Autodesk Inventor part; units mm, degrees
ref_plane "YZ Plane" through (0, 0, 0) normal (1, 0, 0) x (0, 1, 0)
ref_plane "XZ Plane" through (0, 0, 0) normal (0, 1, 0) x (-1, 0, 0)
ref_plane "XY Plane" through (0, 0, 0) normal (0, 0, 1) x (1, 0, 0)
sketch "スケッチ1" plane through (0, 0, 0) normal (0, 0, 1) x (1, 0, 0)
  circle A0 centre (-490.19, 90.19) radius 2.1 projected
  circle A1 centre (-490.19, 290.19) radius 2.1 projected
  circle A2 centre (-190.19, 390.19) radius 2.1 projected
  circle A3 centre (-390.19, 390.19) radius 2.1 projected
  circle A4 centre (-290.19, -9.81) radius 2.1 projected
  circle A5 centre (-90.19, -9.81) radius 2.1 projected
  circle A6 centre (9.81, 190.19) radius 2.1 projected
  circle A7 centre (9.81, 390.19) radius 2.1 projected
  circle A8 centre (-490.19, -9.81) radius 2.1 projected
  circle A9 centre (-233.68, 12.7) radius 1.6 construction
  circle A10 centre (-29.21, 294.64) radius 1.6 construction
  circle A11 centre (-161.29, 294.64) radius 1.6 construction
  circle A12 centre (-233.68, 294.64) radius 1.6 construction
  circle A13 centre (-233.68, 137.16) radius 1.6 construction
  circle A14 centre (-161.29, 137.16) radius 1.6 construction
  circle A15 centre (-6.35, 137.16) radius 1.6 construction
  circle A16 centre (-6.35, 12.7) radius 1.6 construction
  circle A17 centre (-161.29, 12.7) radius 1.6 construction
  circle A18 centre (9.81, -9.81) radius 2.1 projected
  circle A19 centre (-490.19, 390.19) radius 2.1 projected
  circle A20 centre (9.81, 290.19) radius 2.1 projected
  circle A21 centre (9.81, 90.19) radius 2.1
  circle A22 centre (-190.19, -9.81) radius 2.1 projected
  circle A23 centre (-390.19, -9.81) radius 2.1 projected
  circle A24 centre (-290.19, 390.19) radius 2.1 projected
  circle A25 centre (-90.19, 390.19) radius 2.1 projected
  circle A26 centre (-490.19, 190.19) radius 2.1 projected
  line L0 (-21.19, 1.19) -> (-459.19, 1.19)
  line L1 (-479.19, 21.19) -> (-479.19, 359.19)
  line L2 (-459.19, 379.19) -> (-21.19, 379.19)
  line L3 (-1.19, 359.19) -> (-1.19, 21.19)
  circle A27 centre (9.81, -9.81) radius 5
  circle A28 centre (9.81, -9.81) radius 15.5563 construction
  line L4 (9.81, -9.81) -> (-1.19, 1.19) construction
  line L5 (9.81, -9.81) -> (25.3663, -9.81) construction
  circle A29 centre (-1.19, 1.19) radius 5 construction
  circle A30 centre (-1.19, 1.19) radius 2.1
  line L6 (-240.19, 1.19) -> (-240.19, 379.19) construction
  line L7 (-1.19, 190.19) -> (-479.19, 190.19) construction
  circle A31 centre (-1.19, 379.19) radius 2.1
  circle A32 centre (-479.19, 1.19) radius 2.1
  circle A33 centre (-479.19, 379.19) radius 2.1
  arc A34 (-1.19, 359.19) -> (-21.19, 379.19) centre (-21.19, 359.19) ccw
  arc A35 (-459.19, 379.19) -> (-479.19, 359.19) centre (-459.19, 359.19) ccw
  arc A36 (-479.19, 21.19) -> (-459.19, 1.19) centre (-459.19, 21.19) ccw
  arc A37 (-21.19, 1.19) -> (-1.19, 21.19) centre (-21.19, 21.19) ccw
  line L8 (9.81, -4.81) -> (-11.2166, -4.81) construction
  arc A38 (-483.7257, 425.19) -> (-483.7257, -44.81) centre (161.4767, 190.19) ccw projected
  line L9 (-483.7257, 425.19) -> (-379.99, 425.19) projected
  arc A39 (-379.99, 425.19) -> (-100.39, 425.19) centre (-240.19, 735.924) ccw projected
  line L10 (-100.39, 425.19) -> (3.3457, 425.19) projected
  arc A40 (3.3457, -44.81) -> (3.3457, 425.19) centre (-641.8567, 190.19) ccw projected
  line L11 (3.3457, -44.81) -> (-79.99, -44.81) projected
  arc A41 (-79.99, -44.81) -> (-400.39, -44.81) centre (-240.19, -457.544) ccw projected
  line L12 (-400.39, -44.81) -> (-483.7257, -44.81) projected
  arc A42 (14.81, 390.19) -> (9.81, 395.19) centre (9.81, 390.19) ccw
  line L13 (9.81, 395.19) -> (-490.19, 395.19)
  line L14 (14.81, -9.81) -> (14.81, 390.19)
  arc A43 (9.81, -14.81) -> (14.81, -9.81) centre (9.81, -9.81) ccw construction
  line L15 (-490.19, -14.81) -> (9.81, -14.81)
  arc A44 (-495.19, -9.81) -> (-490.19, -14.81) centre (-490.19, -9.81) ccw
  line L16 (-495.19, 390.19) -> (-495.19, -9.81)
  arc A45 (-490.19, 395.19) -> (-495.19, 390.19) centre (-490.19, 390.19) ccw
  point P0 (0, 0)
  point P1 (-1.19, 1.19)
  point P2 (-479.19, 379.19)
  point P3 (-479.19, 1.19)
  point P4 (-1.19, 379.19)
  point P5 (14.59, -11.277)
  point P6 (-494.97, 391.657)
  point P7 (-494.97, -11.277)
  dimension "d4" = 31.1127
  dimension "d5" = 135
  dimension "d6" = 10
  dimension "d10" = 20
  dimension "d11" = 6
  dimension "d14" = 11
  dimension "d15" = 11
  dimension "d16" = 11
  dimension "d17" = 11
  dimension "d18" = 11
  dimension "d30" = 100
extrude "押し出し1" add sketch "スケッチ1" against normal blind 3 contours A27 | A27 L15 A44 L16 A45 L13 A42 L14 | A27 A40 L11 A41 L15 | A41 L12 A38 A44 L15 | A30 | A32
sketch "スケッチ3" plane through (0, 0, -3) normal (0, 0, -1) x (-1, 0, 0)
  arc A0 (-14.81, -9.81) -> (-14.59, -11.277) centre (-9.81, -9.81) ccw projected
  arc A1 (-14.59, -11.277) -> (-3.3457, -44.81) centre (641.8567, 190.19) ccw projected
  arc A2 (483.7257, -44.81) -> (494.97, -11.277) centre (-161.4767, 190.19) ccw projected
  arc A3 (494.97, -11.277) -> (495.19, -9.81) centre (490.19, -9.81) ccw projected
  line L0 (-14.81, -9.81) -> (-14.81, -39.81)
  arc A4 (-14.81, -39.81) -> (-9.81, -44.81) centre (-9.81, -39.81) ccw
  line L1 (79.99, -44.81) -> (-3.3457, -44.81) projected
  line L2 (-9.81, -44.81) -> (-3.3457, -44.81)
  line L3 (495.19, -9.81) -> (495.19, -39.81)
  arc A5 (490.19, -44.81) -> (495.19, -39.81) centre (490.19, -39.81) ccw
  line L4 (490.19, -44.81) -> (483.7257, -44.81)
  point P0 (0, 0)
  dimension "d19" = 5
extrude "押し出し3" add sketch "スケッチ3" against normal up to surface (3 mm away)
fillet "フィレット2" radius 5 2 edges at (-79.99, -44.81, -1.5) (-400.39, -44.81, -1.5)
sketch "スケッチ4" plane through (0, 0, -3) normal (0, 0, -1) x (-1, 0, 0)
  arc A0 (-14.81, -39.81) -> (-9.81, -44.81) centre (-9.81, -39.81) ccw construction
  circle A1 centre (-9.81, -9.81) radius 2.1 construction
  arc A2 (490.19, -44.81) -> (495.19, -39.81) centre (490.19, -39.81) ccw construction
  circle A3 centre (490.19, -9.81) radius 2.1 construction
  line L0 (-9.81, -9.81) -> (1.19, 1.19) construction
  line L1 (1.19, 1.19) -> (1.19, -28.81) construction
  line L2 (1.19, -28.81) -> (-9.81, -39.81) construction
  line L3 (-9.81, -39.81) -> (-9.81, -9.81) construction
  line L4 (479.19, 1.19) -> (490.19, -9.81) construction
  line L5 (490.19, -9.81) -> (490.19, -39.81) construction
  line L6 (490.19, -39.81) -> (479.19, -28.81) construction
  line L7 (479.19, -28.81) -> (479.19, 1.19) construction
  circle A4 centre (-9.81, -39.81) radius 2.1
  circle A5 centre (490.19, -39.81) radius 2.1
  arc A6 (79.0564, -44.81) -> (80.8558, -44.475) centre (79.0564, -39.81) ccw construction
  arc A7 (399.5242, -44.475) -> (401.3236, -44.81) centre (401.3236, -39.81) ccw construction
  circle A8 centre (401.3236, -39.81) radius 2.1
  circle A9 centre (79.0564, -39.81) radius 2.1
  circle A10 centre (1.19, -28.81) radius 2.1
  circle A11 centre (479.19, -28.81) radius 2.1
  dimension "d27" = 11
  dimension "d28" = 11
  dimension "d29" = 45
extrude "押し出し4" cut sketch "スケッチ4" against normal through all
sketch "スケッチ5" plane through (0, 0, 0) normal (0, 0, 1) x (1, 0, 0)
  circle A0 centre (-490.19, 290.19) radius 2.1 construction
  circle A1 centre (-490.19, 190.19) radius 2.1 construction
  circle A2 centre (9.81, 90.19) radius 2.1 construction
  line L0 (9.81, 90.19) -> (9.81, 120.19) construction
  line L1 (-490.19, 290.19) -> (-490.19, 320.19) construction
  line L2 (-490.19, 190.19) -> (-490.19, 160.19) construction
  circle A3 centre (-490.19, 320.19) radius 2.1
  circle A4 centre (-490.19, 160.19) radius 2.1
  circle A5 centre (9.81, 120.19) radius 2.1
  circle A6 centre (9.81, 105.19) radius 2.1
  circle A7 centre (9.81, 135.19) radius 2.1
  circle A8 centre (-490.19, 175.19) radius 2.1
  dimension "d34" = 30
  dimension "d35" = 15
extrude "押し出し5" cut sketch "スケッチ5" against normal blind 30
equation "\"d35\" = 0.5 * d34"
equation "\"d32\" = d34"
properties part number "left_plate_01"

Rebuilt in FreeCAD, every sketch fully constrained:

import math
import FreeCAD as App
import Part
import Sketcher

V = App.Vector


def edges_at(feature, points):
    """Names of the edges that pass closest to the given points."""
    edges = feature.Shape.Edges
    near = lambda p: min(range(len(edges)), key=lambda i: edges[i].distToShape(Part.Vertex(*p))[0])
    return sorted({f"Edge{near(p) + 1}" for p in points})

doc = App.newDocument("Part")
body = doc.addObject("PartDesign::Body", "Body")

# Sketch on XY plane
sketch1 = body.newObject("Sketcher::SketchObject", "Sketch")
sketch1.AttachmentSupport = (doc.getObject("XY_Plane"), [""])
sketch1.MapMode = "FlatFace"
sketch1.addGeometry([
    Part.ArcOfCircle(Part.Circle(V(9.8, -9.8, 0), V(0, 0, 1), 5), math.radians(-17.06), math.radians(0)),  # 0
    Part.LineSegment(V(14.8, -9.8, 0), V(14.8, 390.2, 0)),  # 1
    Part.ArcOfCircle(Part.Circle(V(9.8, 390.2, 0), V(0, 0, 1), 5), math.radians(0), math.radians(90)),  # 2
    Part.LineSegment(V(9.8, 395.2, 0), V(-490.2, 395.2, 0)),  # 3
    Part.ArcOfCircle(Part.Circle(V(-490.2, 390.2, 0), V(0, 0, 1), 5), math.radians(90), math.radians(180)),  # 4
    Part.LineSegment(V(-495.2, 390.2, 0), V(-495.2, -9.8, 0)),  # 5
    Part.ArcOfCircle(Part.Circle(V(-490.2, -9.8, 0), V(0, 0, 1), 5), math.radians(180), math.radians(197.06)),  # 6
    Part.ArcOfCircle(Part.Circle(V(161.5, 190.2, 0), V(0, 0, 1), 686.7), math.radians(-162.94), math.radians(-159.99)),  # 7
    Part.LineSegment(V(-483.7, -44.8, 0), V(-400.4, -44.8, 0)),  # 8
    Part.ArcOfCircle(Part.Circle(V(-240.2, -457.5, 0), V(0, 0, 1), 442.7), math.radians(69), math.radians(111)),  # 9
    Part.LineSegment(V(-80, -44.8, 0), V(3.3, -44.8, 0)),  # 10
    Part.ArcOfCircle(Part.Circle(V(-641.9, 190.2, 0), V(0, 0, 1), 686.7), math.radians(-20.01), math.radians(-17.06)),  # 11
    Part.Circle(V(9.8, -9.8, 0), V(0, 0, 1), 2.1),  # 12
    Part.Circle(V(9.8, 390.2, 0), V(0, 0, 1), 2.1),  # 13
    Part.Circle(V(-1.2, 379.2, 0), V(0, 0, 1), 2.1),  # 14
    Part.Circle(V(-490.2, -9.8, 0), V(0, 0, 1), 2.1),  # 15
    Part.Circle(V(-390.2, -9.8, 0), V(0, 0, 1), 2.1),  # 16
    Part.Circle(V(-290.2, -9.8, 0), V(0, 0, 1), 2.1),  # 17
    Part.Circle(V(-490.2, 90.2, 0), V(0, 0, 1), 2.1),  # 18
    Part.Circle(V(-490.2, 190.2, 0), V(0, 0, 1), 2.1),  # 19
    Part.Circle(V(-190.2, -9.8, 0), V(0, 0, 1), 2.1),  # 20
    Part.Circle(V(-90.2, -9.8, 0), V(0, 0, 1), 2.1),  # 21
    Part.ArcOfCircle(Part.Circle(V(-21.2, 21.2, 0), V(0, 0, 1), 20), math.radians(-90), math.radians(0)),  # 22
    Part.LineSegment(V(-21.2, 1.2, 0), V(-459.2, 1.2, 0)),  # 23
    Part.ArcOfCircle(Part.Circle(V(-459.2, 21.2, 0), V(0, 0, 1), 20), math.radians(180), math.radians(270)),  # 24
    Part.LineSegment(V(-479.2, 21.2, 0), V(-479.2, 359.2, 0)),  # 25
    Part.ArcOfCircle(Part.Circle(V(-459.2, 359.2, 0), V(0, 0, 1), 20), math.radians(90), math.radians(180)),  # 26
    Part.LineSegment(V(-459.2, 379.2, 0), V(-21.2, 379.2, 0)),  # 27
    Part.ArcOfCircle(Part.Circle(V(-21.2, 359.2, 0), V(0, 0, 1), 20), math.radians(0), math.radians(90)),  # 28
    Part.LineSegment(V(-1.2, 359.2, 0), V(-1.2, 21.2, 0)),  # 29
    Part.Circle(V(9.8, 90.2, 0), V(0, 0, 1), 2.1),  # 30
    Part.Circle(V(9.8, 190.2, 0), V(0, 0, 1), 2.1),  # 31
    Part.Circle(V(-490.2, 290.2, 0), V(0, 0, 1), 2.1),  # 32
    Part.Circle(V(-490.2, 390.2, 0), V(0, 0, 1), 2.1),  # 33
    Part.Circle(V(-479.2, 379.2, 0), V(0, 0, 1), 2.1),  # 34
    Part.Circle(V(-390.2, 390.2, 0), V(0, 0, 1), 2.1),  # 35
    Part.Circle(V(-290.2, 390.2, 0), V(0, 0, 1), 2.1),  # 36
    Part.Circle(V(9.8, 290.2, 0), V(0, 0, 1), 2.1),  # 37
    Part.Circle(V(-190.2, 390.2, 0), V(0, 0, 1), 2.1),  # 38
    Part.Circle(V(-90.2, 390.2, 0), V(0, 0, 1), 2.1),  # 39
], False)
sketch1.addConstraint([
    Sketcher.Constraint("Tangent", 0, 2, 1, 1),
    Sketcher.Constraint("Tangent", 1, 2, 2, 1),
    Sketcher.Constraint("Tangent", 2, 2, 3, 1),
    Sketcher.Constraint("Tangent", 3, 2, 4, 1),
    Sketcher.Constraint("Tangent", 4, 2, 5, 1),
    Sketcher.Constraint("Tangent", 5, 2, 6, 1),
    Sketcher.Constraint("Tangent", 6, 2, 7, 1),
    Sketcher.Constraint("Coincident", 7, 2, 8, 1),
    Sketcher.Constraint("Coincident", 8, 2, 9, 2),
    Sketcher.Constraint("Coincident", 9, 1, 10, 1),
    Sketcher.Constraint("Coincident", 10, 2, 11, 1),
    Sketcher.Constraint("Tangent", 11, 2, 0, 1),
    Sketcher.Constraint("Tangent", 22, 1, 23, 1),
    Sketcher.Constraint("Tangent", 23, 2, 24, 2),
    Sketcher.Constraint("Tangent", 24, 1, 25, 1),
    Sketcher.Constraint("Tangent", 25, 2, 26, 2),
    Sketcher.Constraint("Tangent", 26, 1, 27, 1),
    Sketcher.Constraint("Tangent", 27, 2, 28, 2),
    Sketcher.Constraint("Tangent", 28, 1, 29, 1),
    Sketcher.Constraint("Tangent", 29, 2, 22, 2),
    Sketcher.Constraint("Vertical", 1),
    Sketcher.Constraint("Horizontal", 3),
    Sketcher.Constraint("Vertical", 5),
    Sketcher.Constraint("Horizontal", 8),
    Sketcher.Constraint("Horizontal", 10),
    Sketcher.Constraint("Horizontal", 23),
    Sketcher.Constraint("Vertical", 25),
    Sketcher.Constraint("Horizontal", 27),
    Sketcher.Constraint("Vertical", 29),
    Sketcher.Constraint("Coincident", 12, 3, 0, 3),
    Sketcher.Constraint("Coincident", 13, 3, 2, 3),
    Sketcher.Constraint("Coincident", 15, 3, 6, 3),
    Sketcher.Constraint("Coincident", 33, 3, 4, 3),
    Sketcher.Constraint("Equal", 0, 2),
    Sketcher.Constraint("Equal", 2, 4),
    Sketcher.Constraint("Equal", 4, 6),
    Sketcher.Constraint("Equal", 7, 11),
    Sketcher.Constraint("Equal", 12, 13),
    Sketcher.Constraint("Equal", 13, 14),
    Sketcher.Constraint("Equal", 14, 15),
    Sketcher.Constraint("Equal", 15, 16),
    Sketcher.Constraint("Equal", 16, 17),
    Sketcher.Constraint("Equal", 17, 18),
    Sketcher.Constraint("Equal", 18, 19),
    Sketcher.Constraint("Equal", 19, 20),
    Sketcher.Constraint("Equal", 20, 21),
    Sketcher.Constraint("Equal", 22, 24),
    Sketcher.Constraint("Equal", 24, 26),
    Sketcher.Constraint("Equal", 26, 28),
    Sketcher.Constraint("Equal", 21, 30),
    Sketcher.Constraint("Equal", 30, 31),
    Sketcher.Constraint("Equal", 31, 32),
    Sketcher.Constraint("Equal", 32, 33),
    Sketcher.Constraint("Equal", 33, 34),
    Sketcher.Constraint("Equal", 34, 35),
    Sketcher.Constraint("Equal", 35, 36),
    Sketcher.Constraint("Equal", 36, 37),
    Sketcher.Constraint("Equal", 37, 38),
    Sketcher.Constraint("Equal", 38, 39),
    Sketcher.Constraint("Horizontal", 0, 3, 6, 3),
    Sketcher.Constraint("Horizontal", 7, 3, 11, 3),
    Sketcher.Constraint("Horizontal", 15, 3, 16, 3),
    Sketcher.Constraint("Horizontal", 16, 3, 17, 3),
    Sketcher.Constraint("Horizontal", 11, 3, 19, 3),
    Sketcher.Constraint("Horizontal", 17, 3, 20, 3),
    Sketcher.Constraint("Horizontal", 20, 3, 21, 3),
    Sketcher.Constraint("Horizontal", 18, 3, 30, 3),
    Sketcher.Constraint("Horizontal", 19, 3, 31, 3),
    Sketcher.Constraint("Horizontal", 14, 3, 34, 3),
    Sketcher.Constraint("Horizontal", 33, 3, 35, 3),
    Sketcher.Constraint("Horizontal", 35, 3, 36, 3),
    Sketcher.Constraint("Horizontal", 32, 3, 37, 3),
    Sketcher.Constraint("Horizontal", 36, 3, 38, 3),
    Sketcher.Constraint("Horizontal", 38, 3, 39, 3),
    Sketcher.Constraint("Horizontal", 8, 2, 9, 1),
    Sketcher.Constraint("Horizontal", 34, 3, 26, 1),
    Sketcher.Constraint("Vertical", 15, 3, 18, 3),
    Sketcher.Constraint("Vertical", 18, 3, 19, 3),
    Sketcher.Constraint("Vertical", 13, 3, 30, 3),
    Sketcher.Constraint("Vertical", 30, 3, 31, 3),
    Sketcher.Constraint("Vertical", 19, 3, 32, 3),
    Sketcher.Constraint("Vertical", 16, 3, 35, 3),
    Sketcher.Constraint("Vertical", 17, 3, 36, 3),
    Sketcher.Constraint("Vertical", 31, 3, 37, 3),
    Sketcher.Constraint("Vertical", 20, 3, 38, 3),
    Sketcher.Constraint("Vertical", 21, 3, 39, 3),
    Sketcher.Constraint("Vertical", 34, 3, 24, 1),
    Sketcher.Constraint("Vertical", 14, 3, 28, 1),
    Sketcher.Constraint("Equal", 8, 10),
    Sketcher.Constraint("Radius", 0, 5.0),
    Sketcher.Constraint("Radius", 22, 20.0),
    Sketcher.Constraint("DistanceX", 14, 3, 2, 3, 11.0),
    Sketcher.Constraint("DistanceY", 14, 3, 2, 3, 11.0),
    Sketcher.Constraint("DistanceX", 6, 3, 16, 3, 100.0),
    Sketcher.Constraint("DistanceX", 16, 3, 17, 3, 100.0),
    Sketcher.Constraint("DistanceY", 6, 3, 18, 3, 100.0),
    Sketcher.Constraint("DistanceY", 18, 3, 11, 3, 100.0),
    Sketcher.Constraint("DistanceX", 17, 3, 20, 3, 100.0),
    Sketcher.Constraint("DistanceX", 21, 3, 0, 3, 100.0),
    Sketcher.Constraint("DistanceX", 20, 3, 21, 3, 100.0),
    Sketcher.Constraint("DistanceY", 32, 3, 4, 3, 100.0),
    Sketcher.Constraint("DistanceY", 19, 3, 32, 3, 100.0),
    Sketcher.Constraint("DistanceX", 4, 3, 34, 3, 11.0),
    Sketcher.Constraint("DistanceY", 0, 3, 22, 1, 11.0),
    Sketcher.Constraint("Diameter", 12, 4.2),
    Sketcher.Constraint("Radius", 9, 442.734),
    Sketcher.Constraint("DistanceY", 8, 2, 16, 3, 35.0),
    Sketcher.Constraint("Radius", 7, 686.6667),
    Sketcher.Constraint("DistanceX", 8, 2, 16, 3, 10.2),
    Sketcher.Constraint("DistanceX", -1, 1, 0, 3, 9.81),
    Sketcher.Constraint("DistanceY", 0, 3, -1, 1, 9.81),
])
pad1 = body.newObject("PartDesign::Pad", "Pad")
pad1.Profile = sketch1
pad1.Length = 3
pad1.Reversed = True

# Sketch on XY plane
sketch2 = body.newObject("Sketcher::SketchObject", "Sketch001")
sketch2.AttachmentSupport = (doc.getObject("XY_Plane"), [""])
sketch2.MapMode = "FlatFace"
sketch2.AttachmentOffset = App.Placement(V(0, 0, -3), App.Rotation())
sketch2.addGeometry([
    Part.ArcOfCircle(Part.Circle(V(9.807789, -9.809835, 0), V(0, 0, 1), 5.002211), math.radians(-17.055823), math.radians(-0.001889)),  # 0
    Part.LineSegment(V(14.81, -9.81, 0), V(14.81, -39.81, 0)),  # 1
    Part.ArcOfCircle(Part.Circle(V(9.81, -39.81, 0), V(0, 0, 1), 5), math.radians(-90), math.radians(0)),  # 2
    Part.LineSegment(V(9.81, -44.81, 0), V(3.3457, -44.81, 0)),  # 3
    Part.ArcOfCircle(Part.Circle(V(-641.7678, 190.161458, 0), V(0, 0, 1), 686.573385), math.radians(-20.01328), math.radians(-17.061429)),  # 4
    Part.ArcOfCircle(Part.Circle(V(161.56486, 190.22083, 0), V(0, 0, 1), 686.760073), math.radians(-162.938169), math.radians(-159.987121)),  # 5
    Part.LineSegment(V(-483.7257, -44.81, 0), V(-490.19, -44.81, 0)),  # 6
    Part.ArcOfCircle(Part.Circle(V(-490.19, -39.81, 0), V(0, 0, 1), 5), math.radians(180), math.radians(270)),  # 7
    Part.LineSegment(V(-495.19, -39.81, 0), V(-495.19, -9.81, 0)),  # 8
    Part.ArcOfCircle(Part.Circle(V(-490.19216, -9.810491, 0), V(0, 0, 1), 4.99784), math.radians(179.994376), math.radians(197.063336)),  # 9
], False)
sketch2.addConstraint([
    Sketcher.Constraint("Coincident", 0, 2, 1, 1),
    Sketcher.Constraint("Coincident", 1, 2, 2, 2),
    Sketcher.Constraint("Coincident", 2, 1, 3, 1),
    Sketcher.Constraint("Coincident", 3, 2, 4, 1),
    Sketcher.Constraint("Coincident", 4, 2, 0, 1),
    Sketcher.Constraint("Coincident", 5, 2, 6, 1),
    Sketcher.Constraint("Coincident", 6, 2, 7, 2),
    Sketcher.Constraint("Coincident", 7, 1, 8, 1),
    Sketcher.Constraint("Coincident", 8, 2, 9, 1),
    Sketcher.Constraint("Coincident", 9, 2, 5, 1),
    Sketcher.Constraint("Vertical", 1),
    Sketcher.Constraint("Horizontal", 3),
    Sketcher.Constraint("Horizontal", 6),
    Sketcher.Constraint("Vertical", 8),
    Sketcher.Constraint("Radius", 2, 5.0),
    Sketcher.Constraint("Radius", 7, 5.0),
    Sketcher.Constraint("DistanceX", 2, 1, 1, 2, 5.0),
    Sketcher.Constraint("DistanceY", 2, 1, 1, 2, 5.0),
    Sketcher.Constraint("DistanceX", 7, 1, 6, 2, 5.0),
    Sketcher.Constraint("DistanceY", 6, 2, 7, 1, 5.0),
    Sketcher.Constraint("DistanceY", 1, 2, 1, 1, 30.0),
    Sketcher.Constraint("DistanceY", 8, 1, 8, 2, 30.0),
    Sketcher.Constraint("Radius", 5, 686.76),
    Sketcher.Constraint("DistanceX", 7, 3, 2, 3, 500.0),
    Sketcher.Constraint("DistanceX", 9, 3, 0, 3, 500.0),
    Sketcher.Constraint("DistanceY", 7, 3, 0, 2, 30.0),
    Sketcher.Constraint("Radius", 0, 5.0022),
    Sketcher.Constraint("Radius", 4, 686.5734),
    Sketcher.Constraint("DistanceX", -1, 1, 2, 3, 9.81),
    Sketcher.Constraint("DistanceY", 2, 3, -1, 1, 39.81),
    Sketcher.Constraint("DistanceX", -1, 1, 4, 2, 14.59),
    Sketcher.Constraint("DistanceX", 9, 2, -1, 1, 494.97),
    Sketcher.Constraint("DistanceX", 3, 2, 3, 1, 6.4643),
    Sketcher.Constraint("DistanceX", 6, 2, 6, 1, 6.4643),
    Sketcher.Constraint("DistanceY", 9, 2, -1, 1, 11.277),
    Sketcher.Constraint("DistanceY", 9, 3, 4, 3, 199.972),
])
pad2 = body.newObject("PartDesign::Pad", "Pad001")
pad2.Profile = sketch2
pad2.Length = 3
doc.recompute()

fillet = body.newObject("PartDesign::Fillet", "Fillet")
fillet.Base = (pad2, edges_at(pad2, [(-79.99, -44.81, -1.5), (-400.39, -44.81, -1.5)]))
fillet.Radius = 5

# Sketch on XY plane
sketch3 = body.newObject("Sketcher::SketchObject", "Sketch002")
sketch3.AttachmentSupport = (doc.getObject("XY_Plane"), [""])
sketch3.MapMode = "FlatFace"
sketch3.AttachmentOffset = App.Placement(V(0, 0, -3), App.Rotation())
sketch3.addGeometry([
    Part.Circle(V(9.8, -39.8, 0), V(0, 0, 1), 2.1),  # 0
    Part.Circle(V(-490.2, -39.8, 0), V(0, 0, 1), 2.1),  # 1
    Part.Circle(V(-401.3, -39.8, 0), V(0, 0, 1), 2.1),  # 2
    Part.Circle(V(-79.1, -39.8, 0), V(0, 0, 1), 2.1),  # 3
    Part.Circle(V(-1.2, -28.8, 0), V(0, 0, 1), 2.1),  # 4
    Part.Circle(V(-479.2, -28.8, 0), V(0, 0, 1), 2.1),  # 5
], False)
sketch3.addConstraint([
    Sketcher.Constraint("Equal", 0, 1),
    Sketcher.Constraint("Equal", 1, 2),
    Sketcher.Constraint("Equal", 2, 3),
    Sketcher.Constraint("Equal", 3, 4),
    Sketcher.Constraint("Equal", 4, 5),
    Sketcher.Constraint("Horizontal", 0, 3, 1, 3),
    Sketcher.Constraint("Horizontal", 1, 3, 2, 3),
    Sketcher.Constraint("Horizontal", 2, 3, 3, 3),
    Sketcher.Constraint("Horizontal", 4, 3, 5, 3),
    Sketcher.Constraint("DistanceX", 4, 3, 0, 3, 11.0),
    Sketcher.Constraint("DistanceY", 0, 3, 4, 3, 11.0),
    Sketcher.Constraint("DistanceX", 1, 3, 5, 3, 11.0),
    Sketcher.Constraint("Diameter", 0, 4.2),
    Sketcher.Constraint("DistanceX", 1, 3, 0, 3, 500.0),
    Sketcher.Constraint("DistanceX", -1, 1, 0, 3, 9.81),
    Sketcher.Constraint("DistanceY", 0, 3, -1, 1, 39.81),
    Sketcher.Constraint("DistanceX", 2, 3, -1, 1, 401.3236),
    Sketcher.Constraint("DistanceX", 3, 3, -1, 1, 79.0564),
])
pocket1 = body.newObject("PartDesign::Pocket", "Pocket")
pocket1.Profile = sketch3
pocket1.Type = "ThroughAll"
pocket1.Reversed = True

# Sketch on XY plane
sketch4 = body.newObject("Sketcher::SketchObject", "Sketch003")
sketch4.AttachmentSupport = (doc.getObject("XY_Plane"), [""])
sketch4.MapMode = "FlatFace"
sketch4.addGeometry([
    Part.Circle(V(-490.2, 320.2, 0), V(0, 0, 1), 2.1),  # 0
    Part.Circle(V(-490.2, 160.2, 0), V(0, 0, 1), 2.1),  # 1
    Part.Circle(V(9.8, 120.2, 0), V(0, 0, 1), 2.1),  # 2
    Part.Circle(V(9.8, 105.2, 0), V(0, 0, 1), 2.1),  # 3
    Part.Circle(V(9.8, 135.2, 0), V(0, 0, 1), 2.1),  # 4
    Part.Circle(V(-490.2, 175.2, 0), V(0, 0, 1), 2.1),  # 5
], False)
sketch4.addConstraint([
    Sketcher.Constraint("Equal", 0, 1),
    Sketcher.Constraint("Equal", 1, 2),
    Sketcher.Constraint("Equal", 2, 3),
    Sketcher.Constraint("Equal", 3, 4),
    Sketcher.Constraint("Equal", 4, 5),
    Sketcher.Constraint("Vertical", 0, 3, 1, 3),
    Sketcher.Constraint("Vertical", 2, 3, 3, 3),
    Sketcher.Constraint("Vertical", 3, 3, 4, 3),
    Sketcher.Constraint("Vertical", 1, 3, 5, 3),
    Sketcher.Constraint("DistanceY", 3, 3, 2, 3, 15.0),
    Sketcher.Constraint("DistanceY", 2, 3, 4, 3, 15.0),
    Sketcher.Constraint("DistanceY", 1, 3, 5, 3, 15.0),
    Sketcher.Constraint("Diameter", 0, 4.2),
    Sketcher.Constraint("DistanceY", 1, 3, 0, 3, 160.0),
    Sketcher.Constraint("DistanceX", 1, 3, 2, 3, 500.0),
    Sketcher.Constraint("DistanceY", 2, 3, 1, 3, 40.0),
    Sketcher.Constraint("DistanceX", 0, 3, -1, 1, 490.19),
    Sketcher.Constraint("DistanceY", -1, 1, 0, 3, 320.19),
])
pocket2 = body.newObject("PartDesign::Pocket", "Pocket001")
pocket2.Profile = sketch4
pocket2.Length = 30

doc.recompute()
